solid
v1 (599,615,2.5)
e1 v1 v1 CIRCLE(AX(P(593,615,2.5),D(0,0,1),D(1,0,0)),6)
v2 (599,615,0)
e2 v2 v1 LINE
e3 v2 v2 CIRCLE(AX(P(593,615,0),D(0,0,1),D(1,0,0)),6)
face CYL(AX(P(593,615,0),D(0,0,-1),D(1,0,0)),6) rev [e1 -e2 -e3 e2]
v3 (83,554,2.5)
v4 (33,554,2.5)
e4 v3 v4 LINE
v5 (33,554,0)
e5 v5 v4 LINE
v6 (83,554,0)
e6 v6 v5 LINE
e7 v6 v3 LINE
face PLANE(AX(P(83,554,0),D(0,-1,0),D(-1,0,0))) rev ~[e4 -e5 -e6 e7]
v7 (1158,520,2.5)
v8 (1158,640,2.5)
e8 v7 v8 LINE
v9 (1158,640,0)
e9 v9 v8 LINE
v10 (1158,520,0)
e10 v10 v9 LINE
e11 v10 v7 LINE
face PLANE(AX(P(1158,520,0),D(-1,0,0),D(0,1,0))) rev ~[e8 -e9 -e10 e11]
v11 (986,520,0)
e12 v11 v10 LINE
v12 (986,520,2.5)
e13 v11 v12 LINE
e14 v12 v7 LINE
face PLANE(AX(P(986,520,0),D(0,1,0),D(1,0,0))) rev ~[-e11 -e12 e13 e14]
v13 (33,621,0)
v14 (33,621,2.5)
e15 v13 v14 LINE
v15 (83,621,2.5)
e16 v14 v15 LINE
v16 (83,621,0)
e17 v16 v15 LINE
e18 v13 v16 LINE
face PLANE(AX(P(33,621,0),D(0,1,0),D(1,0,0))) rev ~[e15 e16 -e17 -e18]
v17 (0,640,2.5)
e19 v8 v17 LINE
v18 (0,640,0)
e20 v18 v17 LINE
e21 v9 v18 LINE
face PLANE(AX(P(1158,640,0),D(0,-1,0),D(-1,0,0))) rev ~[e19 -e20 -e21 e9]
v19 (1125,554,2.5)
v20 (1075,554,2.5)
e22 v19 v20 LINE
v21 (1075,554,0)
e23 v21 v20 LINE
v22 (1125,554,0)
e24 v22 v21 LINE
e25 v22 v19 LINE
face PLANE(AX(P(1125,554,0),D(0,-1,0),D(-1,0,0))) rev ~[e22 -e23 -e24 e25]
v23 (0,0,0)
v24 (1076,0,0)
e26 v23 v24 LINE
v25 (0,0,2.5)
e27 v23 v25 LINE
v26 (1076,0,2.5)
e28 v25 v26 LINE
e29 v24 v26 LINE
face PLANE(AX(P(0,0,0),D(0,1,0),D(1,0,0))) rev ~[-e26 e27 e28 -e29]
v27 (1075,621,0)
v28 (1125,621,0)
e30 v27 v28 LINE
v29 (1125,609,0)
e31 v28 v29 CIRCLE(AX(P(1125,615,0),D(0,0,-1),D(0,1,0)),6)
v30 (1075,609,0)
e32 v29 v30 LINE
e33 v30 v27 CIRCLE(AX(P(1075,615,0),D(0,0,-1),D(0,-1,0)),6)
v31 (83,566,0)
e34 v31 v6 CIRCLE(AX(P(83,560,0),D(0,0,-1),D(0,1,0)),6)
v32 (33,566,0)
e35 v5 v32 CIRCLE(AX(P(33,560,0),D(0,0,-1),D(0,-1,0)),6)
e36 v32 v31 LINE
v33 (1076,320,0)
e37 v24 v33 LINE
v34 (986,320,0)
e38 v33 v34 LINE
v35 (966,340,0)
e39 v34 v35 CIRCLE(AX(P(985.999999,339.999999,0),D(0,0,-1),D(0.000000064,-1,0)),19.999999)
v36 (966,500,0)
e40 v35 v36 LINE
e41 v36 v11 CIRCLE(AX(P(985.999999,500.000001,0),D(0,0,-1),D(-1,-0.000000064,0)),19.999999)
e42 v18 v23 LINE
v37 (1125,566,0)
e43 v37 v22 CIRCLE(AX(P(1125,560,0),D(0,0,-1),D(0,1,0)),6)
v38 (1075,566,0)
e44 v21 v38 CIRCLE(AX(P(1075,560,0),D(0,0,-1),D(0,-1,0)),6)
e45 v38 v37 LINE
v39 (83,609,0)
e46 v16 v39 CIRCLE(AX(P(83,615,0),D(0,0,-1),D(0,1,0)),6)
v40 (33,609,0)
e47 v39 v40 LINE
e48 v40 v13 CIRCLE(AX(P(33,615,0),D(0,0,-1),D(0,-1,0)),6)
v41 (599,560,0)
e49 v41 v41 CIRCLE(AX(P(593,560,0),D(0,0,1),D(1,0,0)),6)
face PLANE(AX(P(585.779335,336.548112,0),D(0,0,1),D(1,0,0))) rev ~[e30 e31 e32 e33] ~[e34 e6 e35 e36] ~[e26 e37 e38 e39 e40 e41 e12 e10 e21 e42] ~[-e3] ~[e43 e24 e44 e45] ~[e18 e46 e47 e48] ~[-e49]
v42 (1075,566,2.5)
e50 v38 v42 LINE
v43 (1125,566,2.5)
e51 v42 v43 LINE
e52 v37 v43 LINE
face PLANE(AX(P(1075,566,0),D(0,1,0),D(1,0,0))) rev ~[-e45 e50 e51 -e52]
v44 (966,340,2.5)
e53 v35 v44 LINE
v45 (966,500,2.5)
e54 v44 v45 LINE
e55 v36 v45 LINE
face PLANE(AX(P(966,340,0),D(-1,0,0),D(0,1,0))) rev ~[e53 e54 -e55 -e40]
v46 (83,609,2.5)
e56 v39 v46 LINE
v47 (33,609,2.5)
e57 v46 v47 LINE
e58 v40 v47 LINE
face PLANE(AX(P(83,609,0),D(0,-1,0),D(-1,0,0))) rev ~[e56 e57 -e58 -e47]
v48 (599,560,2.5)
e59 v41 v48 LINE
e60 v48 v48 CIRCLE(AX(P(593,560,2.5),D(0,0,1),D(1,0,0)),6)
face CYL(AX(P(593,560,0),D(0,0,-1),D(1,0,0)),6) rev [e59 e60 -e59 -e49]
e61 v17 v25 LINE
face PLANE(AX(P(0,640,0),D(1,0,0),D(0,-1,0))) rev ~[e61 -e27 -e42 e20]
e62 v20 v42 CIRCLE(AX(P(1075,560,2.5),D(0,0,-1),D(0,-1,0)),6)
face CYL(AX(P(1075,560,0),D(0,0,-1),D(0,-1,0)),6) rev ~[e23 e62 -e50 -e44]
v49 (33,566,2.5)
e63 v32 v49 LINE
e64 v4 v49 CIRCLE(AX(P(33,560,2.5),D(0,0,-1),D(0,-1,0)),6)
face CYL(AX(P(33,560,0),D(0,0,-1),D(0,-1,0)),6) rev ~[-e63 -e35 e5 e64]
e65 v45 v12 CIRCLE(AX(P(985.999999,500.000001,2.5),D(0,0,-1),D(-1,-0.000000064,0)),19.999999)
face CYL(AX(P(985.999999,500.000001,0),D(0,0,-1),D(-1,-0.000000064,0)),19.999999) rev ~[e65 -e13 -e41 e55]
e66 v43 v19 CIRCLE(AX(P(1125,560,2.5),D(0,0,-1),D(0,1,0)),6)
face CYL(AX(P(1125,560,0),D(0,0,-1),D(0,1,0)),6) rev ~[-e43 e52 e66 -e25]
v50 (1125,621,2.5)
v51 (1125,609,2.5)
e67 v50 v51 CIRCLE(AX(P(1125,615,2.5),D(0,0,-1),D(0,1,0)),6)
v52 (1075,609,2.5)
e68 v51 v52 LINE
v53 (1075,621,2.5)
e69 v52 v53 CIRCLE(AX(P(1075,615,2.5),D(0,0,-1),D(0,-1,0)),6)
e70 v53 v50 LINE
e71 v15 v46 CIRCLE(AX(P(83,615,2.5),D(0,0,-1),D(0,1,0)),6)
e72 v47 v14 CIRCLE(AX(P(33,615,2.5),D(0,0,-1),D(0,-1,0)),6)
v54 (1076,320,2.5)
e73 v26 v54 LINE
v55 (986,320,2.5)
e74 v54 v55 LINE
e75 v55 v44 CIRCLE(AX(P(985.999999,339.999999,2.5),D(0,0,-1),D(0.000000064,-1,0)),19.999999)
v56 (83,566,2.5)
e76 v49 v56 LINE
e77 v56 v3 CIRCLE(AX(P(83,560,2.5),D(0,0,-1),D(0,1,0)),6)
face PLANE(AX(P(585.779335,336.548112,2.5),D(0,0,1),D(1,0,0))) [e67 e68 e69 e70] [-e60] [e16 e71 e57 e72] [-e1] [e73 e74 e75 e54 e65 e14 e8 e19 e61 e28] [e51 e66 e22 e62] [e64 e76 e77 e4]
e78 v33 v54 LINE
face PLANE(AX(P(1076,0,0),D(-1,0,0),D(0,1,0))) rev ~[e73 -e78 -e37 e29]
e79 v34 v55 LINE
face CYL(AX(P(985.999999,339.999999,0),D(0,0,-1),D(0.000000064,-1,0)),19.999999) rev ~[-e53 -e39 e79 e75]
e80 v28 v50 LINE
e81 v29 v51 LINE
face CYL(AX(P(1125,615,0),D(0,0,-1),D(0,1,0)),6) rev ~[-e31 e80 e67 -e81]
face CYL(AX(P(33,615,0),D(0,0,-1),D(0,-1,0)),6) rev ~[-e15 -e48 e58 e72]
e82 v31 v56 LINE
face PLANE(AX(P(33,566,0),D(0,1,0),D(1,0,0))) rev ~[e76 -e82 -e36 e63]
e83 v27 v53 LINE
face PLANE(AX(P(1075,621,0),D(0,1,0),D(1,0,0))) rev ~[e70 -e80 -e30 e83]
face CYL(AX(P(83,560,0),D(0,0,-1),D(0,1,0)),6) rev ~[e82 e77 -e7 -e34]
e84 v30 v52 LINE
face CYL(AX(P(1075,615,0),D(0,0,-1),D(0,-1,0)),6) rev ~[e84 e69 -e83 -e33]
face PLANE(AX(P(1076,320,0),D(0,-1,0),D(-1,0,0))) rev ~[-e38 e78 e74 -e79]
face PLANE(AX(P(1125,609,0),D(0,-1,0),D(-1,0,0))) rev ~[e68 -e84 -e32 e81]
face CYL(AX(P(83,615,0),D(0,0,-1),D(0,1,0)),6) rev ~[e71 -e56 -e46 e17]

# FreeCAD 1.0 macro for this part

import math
import FreeCAD as App
import Part
import Sketcher

doc = App.newDocument("Part")
params = doc.addObject("Spreadsheet::Sheet", "Params")
for row, (alias, value) in enumerate([
    ("sketch1_diameter", "12 mm"),
    ("sketch1_radius", "19.999999 mm"),
    ("sketch1_width", "1076 mm"),
    ("sketch1_width2", "90 mm"),
    ("sketch1_width3", "172 mm"),
    ("pad1_length", "2.5 mm"),
], start=1):
    params.set(f"A{row}", alias)
    params.set(f"B{row}", "=" + value)
    params.setAlias(f"B{row}", alias)

body = doc.addObject("PartDesign::Body", "Body")

# Sketch on XY plane
sketch1 = body.newObject("Sketcher::SketchObject", "Sketch")
sketch1.AttachmentSupport = (doc.getObject("XY_Plane"), [""])
sketch1.MapMode = "FlatFace"
sketch1.addGeometry([
    Part.LineSegment(App.Vector(0, 640, 0), App.Vector(0, 0, 0)),  # 0
    Part.LineSegment(App.Vector(0, 0, 0), App.Vector(1076, 0, 0)),  # 1
    Part.LineSegment(App.Vector(1076, 0, 0), App.Vector(1076, 320, 0)),  # 2
    Part.LineSegment(App.Vector(1076, 320, 0), App.Vector(986, 320, 0)),  # 3
    Part.ArcOfCircle(Part.Circle(App.Vector(986, 340, 0), App.Vector(0, 0, 1), 20), math.radians(180), math.radians(270)),  # 4
    Part.LineSegment(App.Vector(966, 340, 0), App.Vector(966, 500, 0)),  # 5
    Part.ArcOfCircle(Part.Circle(App.Vector(986, 500, 0), App.Vector(0, 0, 1), 20), math.radians(90), math.radians(180)),  # 6
    Part.LineSegment(App.Vector(986, 520, 0), App.Vector(1158, 520, 0)),  # 7
    Part.LineSegment(App.Vector(1158, 520, 0), App.Vector(1158, 640, 0)),  # 8
    Part.LineSegment(App.Vector(1158, 640, 0), App.Vector(0, 640, 0)),  # 9
    Part.LineSegment(App.Vector(83, 554, 0), App.Vector(33, 554, 0)),  # 10
    Part.ArcOfCircle(Part.Circle(App.Vector(33, 560, 0), App.Vector(0, 0, 1), 6), math.radians(90), math.radians(270)),  # 11
    Part.LineSegment(App.Vector(33, 566, 0), App.Vector(83, 566, 0)),  # 12
    Part.ArcOfCircle(Part.Circle(App.Vector(83, 560, 0), App.Vector(0, 0, 1), 6), math.radians(-90), math.radians(90)),  # 13
    Part.Circle(App.Vector(593, 560, 0), App.Vector(0, 0, 1), 6),  # 14
    Part.LineSegment(App.Vector(1125, 554, 0), App.Vector(1075, 554, 0)),  # 15
    Part.ArcOfCircle(Part.Circle(App.Vector(1075, 560, 0), App.Vector(0, 0, 1), 6), math.radians(90), math.radians(270)),  # 16
    Part.LineSegment(App.Vector(1075, 566, 0), App.Vector(1125, 566, 0)),  # 17
    Part.ArcOfCircle(Part.Circle(App.Vector(1125, 560, 0), App.Vector(0, 0, 1), 6), math.radians(-90), math.radians(90)),  # 18
    Part.LineSegment(App.Vector(83, 609, 0), App.Vector(33, 609, 0)),  # 19
    Part.ArcOfCircle(Part.Circle(App.Vector(33, 615, 0), App.Vector(0, 0, 1), 6), math.radians(90), math.radians(270)),  # 20
    Part.LineSegment(App.Vector(33, 621, 0), App.Vector(83, 621, 0)),  # 21
    Part.ArcOfCircle(Part.Circle(App.Vector(83, 615, 0), App.Vector(0, 0, 1), 6), math.radians(-90), math.radians(90)),  # 22
    Part.Circle(App.Vector(593, 615, 0), App.Vector(0, 0, 1), 6),  # 23
    Part.LineSegment(App.Vector(1125, 609, 0), App.Vector(1075, 609, 0)),  # 24
    Part.ArcOfCircle(Part.Circle(App.Vector(1075, 615, 0), App.Vector(0, 0, 1), 6), math.radians(90), math.radians(270)),  # 25
    Part.LineSegment(App.Vector(1075, 621, 0), App.Vector(1125, 621, 0)),  # 26
    Part.ArcOfCircle(Part.Circle(App.Vector(1125, 615, 0), App.Vector(0, 0, 1), 6), math.radians(-90), math.radians(90)),  # 27
], False)
sketch1.addConstraint([
    Sketcher.Constraint("Coincident", 0, 2, 1, 1),
    Sketcher.Constraint("Coincident", 1, 2, 2, 1),
    Sketcher.Constraint("Coincident", 2, 2, 3, 1),
    Sketcher.Constraint("Tangent", 3, 2, 4, 2),
    Sketcher.Constraint("Tangent", 4, 1, 5, 1),
    Sketcher.Constraint("Tangent", 5, 2, 6, 2),
    Sketcher.Constraint("Tangent", 6, 1, 7, 1),
    Sketcher.Constraint("Coincident", 7, 2, 8, 1),
    Sketcher.Constraint("Coincident", 8, 2, 9, 1),
    Sketcher.Constraint("Coincident", 9, 2, 0, 1),
    Sketcher.Constraint("Tangent", 10, 2, 11, 2),
    Sketcher.Constraint("Tangent", 11, 1, 12, 1),
    Sketcher.Constraint("Tangent", 12, 2, 13, 2),
    Sketcher.Constraint("Tangent", 13, 1, 10, 1),
    Sketcher.Constraint("Tangent", 15, 2, 16, 2),
    Sketcher.Constraint("Tangent", 16, 1, 17, 1),
    Sketcher.Constraint("Tangent", 17, 2, 18, 2),
    Sketcher.Constraint("Tangent", 18, 1, 15, 1),
    Sketcher.Constraint("Tangent", 19, 2, 20, 2),
    Sketcher.Constraint("Tangent", 20, 1, 21, 1),
    Sketcher.Constraint("Tangent", 21, 2, 22, 2),
    Sketcher.Constraint("Tangent", 22, 1, 19, 1),
    Sketcher.Constraint("Tangent", 24, 2, 25, 2),
    Sketcher.Constraint("Tangent", 25, 1, 26, 1),
    Sketcher.Constraint("Tangent", 26, 2, 27, 2),
    Sketcher.Constraint("Tangent", 27, 1, 24, 1),
    Sketcher.Constraint("Vertical", 0),
    Sketcher.Constraint("Horizontal", 1),
    Sketcher.Constraint("Vertical", 2),
    Sketcher.Constraint("Horizontal", 3),
    Sketcher.Constraint("Vertical", 5),
    Sketcher.Constraint("Horizontal", 7),
    Sketcher.Constraint("Vertical", 8),
    Sketcher.Constraint("Horizontal", 9),
    Sketcher.Constraint("Horizontal", 10),
    Sketcher.Constraint("Horizontal", 12),
    Sketcher.Constraint("Horizontal", 15),
    Sketcher.Constraint("Horizontal", 17),
    Sketcher.Constraint("Horizontal", 19),
    Sketcher.Constraint("Horizontal", 21),
    Sketcher.Constraint("Horizontal", 24),
    Sketcher.Constraint("Horizontal", 26),
    Sketcher.Constraint("Coincident", 0, 2, -1, 1),
    Sketcher.Constraint("Equal", 4, 6),
    Sketcher.Constraint("Equal", 13, 14),
    Sketcher.Constraint("Equal", 14, 16),
    Sketcher.Constraint("Equal", 18, 20),
    Sketcher.Constraint("Equal", 22, 23),
    Sketcher.Constraint("Equal", 23, 25),
    Sketcher.Constraint("Horizontal", 13, 3, 14, 3),
    Sketcher.Constraint("Horizontal", 14, 3, 16, 3),
    Sketcher.Constraint("Horizontal", 22, 3, 23, 3),
    Sketcher.Constraint("Horizontal", 23, 3, 25, 3),
    Sketcher.Constraint("Vertical", 11, 3, 20, 3),
    Sketcher.Constraint("Vertical", 13, 3, 22, 3),
    Sketcher.Constraint("Vertical", 14, 3, 23, 3),
    Sketcher.Constraint("Vertical", 16, 3, 25, 3),
    Sketcher.Constraint("Vertical", 18, 3, 27, 3),
    Sketcher.Constraint("Equal", 12, 15),
    Sketcher.Constraint("Diameter", 14, 12.0),
    Sketcher.Constraint("Radius", 4, 19.999999),
    Sketcher.Constraint("DistanceX", 1, 1, 1, 2, 1076.0),
    Sketcher.Constraint("DistanceX", 3, 2, 3, 1, 90.0),
    Sketcher.Constraint("DistanceX", 7, 1, 7, 2, 172.0),
    Sketcher.Constraint("DistanceX", 10, 2, 10, 1, 50.0),
    Sketcher.Constraint("DistanceY", 0, 2, 0, 1, 640.0),
    Sketcher.Constraint("DistanceY", 2, 1, 2, 2, 320.0),
    Sketcher.Constraint("DistanceY", 5, 1, 5, 2, 160.0),
    Sketcher.Constraint("DistanceX", -1, 1, 11, 3, 33.0),
    Sketcher.Constraint("DistanceY", -1, 1, 11, 3, 560.0),
    Sketcher.Constraint("DistanceX", -1, 1, 14, 3, 593.0),
    Sketcher.Constraint("DistanceX", -1, 1, 16, 3, 1075.0),
    Sketcher.Constraint("DistanceY", -1, 1, 20, 3, 615.0),
])
sketch1.setExpression("Constraints[59]", "Params.sketch1_diameter")
sketch1.setExpression("Constraints[60]", "Params.sketch1_radius")
sketch1.setExpression("Constraints[61]", "Params.sketch1_width")
sketch1.setExpression("Constraints[62]", "Params.sketch1_width2")
sketch1.setExpression("Constraints[63]", "Params.sketch1_width3")
pad1 = body.newObject("PartDesign::Pad", "Pad")
pad1.Profile = sketch1
pad1.setExpression("Length", "Params.pad1_length")

doc.recompute()
